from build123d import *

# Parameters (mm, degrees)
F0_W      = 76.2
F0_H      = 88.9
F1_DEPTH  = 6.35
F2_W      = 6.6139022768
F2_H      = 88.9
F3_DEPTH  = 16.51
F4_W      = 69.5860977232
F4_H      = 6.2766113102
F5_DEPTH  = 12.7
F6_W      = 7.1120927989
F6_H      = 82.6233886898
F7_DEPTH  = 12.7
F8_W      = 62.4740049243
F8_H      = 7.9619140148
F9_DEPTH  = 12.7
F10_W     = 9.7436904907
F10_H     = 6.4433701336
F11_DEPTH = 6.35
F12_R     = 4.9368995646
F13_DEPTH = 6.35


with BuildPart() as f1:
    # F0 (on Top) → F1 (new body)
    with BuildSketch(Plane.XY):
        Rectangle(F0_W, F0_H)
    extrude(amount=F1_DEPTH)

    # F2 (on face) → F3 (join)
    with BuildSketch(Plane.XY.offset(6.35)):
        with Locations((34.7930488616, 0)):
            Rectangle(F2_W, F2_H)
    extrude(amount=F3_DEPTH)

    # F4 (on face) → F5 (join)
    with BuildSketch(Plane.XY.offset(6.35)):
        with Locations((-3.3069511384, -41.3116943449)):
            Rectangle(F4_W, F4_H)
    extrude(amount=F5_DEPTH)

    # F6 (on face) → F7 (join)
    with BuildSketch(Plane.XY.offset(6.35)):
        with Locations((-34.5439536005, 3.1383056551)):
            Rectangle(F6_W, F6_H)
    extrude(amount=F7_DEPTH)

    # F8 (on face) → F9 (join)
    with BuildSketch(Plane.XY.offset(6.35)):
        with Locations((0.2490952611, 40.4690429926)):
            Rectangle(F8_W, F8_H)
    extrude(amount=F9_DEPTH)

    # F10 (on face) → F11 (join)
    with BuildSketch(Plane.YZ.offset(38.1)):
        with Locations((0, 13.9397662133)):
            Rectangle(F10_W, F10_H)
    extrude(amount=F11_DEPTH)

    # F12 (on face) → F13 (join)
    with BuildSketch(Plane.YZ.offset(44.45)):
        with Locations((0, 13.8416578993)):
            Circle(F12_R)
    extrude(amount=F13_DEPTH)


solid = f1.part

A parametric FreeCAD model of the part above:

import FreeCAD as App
import Part
import Sketcher

V = App.Vector
Q = App.Units.Quantity

doc = App.newDocument("Part")
body = doc.addObject("PartDesign::Body", "Body")

# Sketch on XY plane
sketch1 = body.newObject("Sketcher::SketchObject", "Sketch")
sketch1.AttachmentSupport = (doc.getObject("XY_Plane"), [""])
sketch1.MapMode = "FlatFace"
sketch1.addGeometry(Part.LineSegment(V(-38.1, 44.45, 0), V(-38.1, -44.45, 0)), False)
sketch1.addGeometry(Part.LineSegment(V(-38.1, -44.45, 0), V(38.1, -44.45, 0)), False)
sketch1.addGeometry(Part.LineSegment(V(38.1, -44.45, 0), V(38.1, 44.45, 0)), False)
sketch1.addGeometry(Part.LineSegment(V(38.1, 44.45, 0), V(-38.1, 44.45, 0)), False)
sketch1.addConstraint(Sketcher.Constraint("Coincident", 0, 2, 1, 1))
sketch1.addConstraint(Sketcher.Constraint("Coincident", 1, 2, 2, 1))
sketch1.addConstraint(Sketcher.Constraint("Coincident", 2, 2, 3, 1))
sketch1.addConstraint(Sketcher.Constraint("Coincident", 3, 2, 0, 1))
sketch1.addConstraint(Sketcher.Constraint("Vertical", 0))
sketch1.addConstraint(Sketcher.Constraint("Horizontal", 1))
sketch1.addConstraint(Sketcher.Constraint("Vertical", 2))
sketch1.addConstraint(Sketcher.Constraint("Horizontal", 3))
sketch1.addConstraint(Sketcher.Constraint("Symmetric", 0, 2, 2, 2, -1, 1))
sketch1.addConstraint(Sketcher.Constraint("DistanceX", 1, 1, 1, 2, Q("3 in")))
sketch1.addConstraint(Sketcher.Constraint("DistanceY", 0, 2, 0, 1, Q("3.5 in")))
pad1 = body.newObject("PartDesign::Pad", "Pad")
pad1.Profile = sketch1
pad1.Length = Q("0.25 in")

# Sketch on XY plane
sketch2 = body.newObject("Sketcher::SketchObject", "Sketch001")
sketch2.AttachmentSupport = (doc.getObject("XY_Plane"), [""])
sketch2.MapMode = "FlatFace"
sketch2.AttachmentOffset = App.Placement(V(0, 0, 0.25 * 25.4), App.Rotation())
sketch2.addGeometry(Part.LineSegment(V(31.486098, 44.45, 0), V(31.486098, -44.45, 0)), False)
sketch2.addGeometry(Part.LineSegment(V(31.486098, -44.45, 0), V(38.1, -44.45, 0)), False)
sketch2.addGeometry(Part.LineSegment(V(38.1, -44.45, 0), V(38.1, 44.45, 0)), False)
sketch2.addGeometry(Part.LineSegment(V(38.1, 44.45, 0), V(31.486098, 44.45, 0)), False)
sketch2.addConstraint(Sketcher.Constraint("Coincident", 0, 2, 1, 1))
sketch2.addConstraint(Sketcher.Constraint("Coincident", 1, 2, 2, 1))
sketch2.addConstraint(Sketcher.Constraint("Coincident", 2, 2, 3, 1))
sketch2.addConstraint(Sketcher.Constraint("Coincident", 3, 2, 0, 1))
sketch2.addConstraint(Sketcher.Constraint("Vertical", 0))
sketch2.addConstraint(Sketcher.Constraint("Horizontal", 1))
sketch2.addConstraint(Sketcher.Constraint("Vertical", 2))
sketch2.addConstraint(Sketcher.Constraint("Horizontal", 3))
sketch2.addConstraint(Sketcher.Constraint("DistanceY", 0, 2, 0, 1, Q("3.5 in")))
sketch2.addConstraint(Sketcher.Constraint("DistanceX", -1, 1, 1, 2, Q("1.5 in")))
sketch2.addConstraint(Sketcher.Constraint("DistanceY", 0, 2, -1, 1, Q("1.75 in")))
sketch2.addConstraint(Sketcher.Constraint("DistanceX", 1, 1, 1, 2, Q("6.613902 mm")))
pad2 = body.newObject("PartDesign::Pad", "Pad001")
pad2.Profile = sketch2
pad2.Length = Q("0.65 in")

# Sketch on XY plane
sketch3 = body.newObject("Sketcher::SketchObject", "Sketch002")
sketch3.AttachmentSupport = (doc.getObject("XY_Plane"), [""])
sketch3.MapMode = "FlatFace"
sketch3.AttachmentOffset = App.Placement(V(0, 0, 0.25 * 25.4), App.Rotation())
sketch3.addGeometry(Part.LineSegment(V(-38.1, -38.173389, 0), V(-38.1, -44.45, 0)), False)
sketch3.addGeometry(Part.LineSegment(V(-38.1, -44.45, 0), V(31.486098, -44.45, 0)), False)
sketch3.addGeometry(Part.LineSegment(V(31.486098, -44.45, 0), V(31.486098, -38.173389, 0)), False)
sketch3.addGeometry(Part.LineSegment(V(31.486098, -38.173389, 0), V(-38.1, -38.173389, 0)), False)
sketch3.addConstraint(Sketcher.Constraint("Coincident", 0, 2, 1, 1))
sketch3.addConstraint(Sketcher.Constraint("Coincident", 1, 2, 2, 1))
sketch3.addConstraint(Sketcher.Constraint("Coincident", 2, 2, 3, 1))
sketch3.addConstraint(Sketcher.Constraint("Coincident", 3, 2, 0, 1))
sketch3.addConstraint(Sketcher.Constraint("Vertical", 0))
sketch3.addConstraint(Sketcher.Constraint("Horizontal", 1))
sketch3.addConstraint(Sketcher.Constraint("Vertical", 2))
sketch3.addConstraint(Sketcher.Constraint("Horizontal", 3))
sketch3.addConstraint(Sketcher.Constraint("DistanceX", 0, 2, -1, 1, Q("1.5 in")))
sketch3.addConstraint(Sketcher.Constraint("DistanceY", 0, 2, -1, 1, Q("1.75 in")))
sketch3.addConstraint(Sketcher.Constraint("DistanceY", 0, 2, 0, 1, Q("6.276611 mm")))
sketch3.addConstraint(Sketcher.Constraint("DistanceX", 1, 1, 1, 2, Q("69.586098 mm")))
pad3 = body.newObject("PartDesign::Pad", "Pad002")
pad3.Profile = sketch3
pad3.Length = Q("0.5 in")

# Sketch on XY plane
sketch4 = body.newObject("Sketcher::SketchObject", "Sketch003")
sketch4.AttachmentSupport = (doc.getObject("XY_Plane"), [""])
sketch4.MapMode = "FlatFace"
sketch4.AttachmentOffset = App.Placement(V(0, 0, 0.25 * 25.4), App.Rotation())
sketch4.addGeometry(Part.LineSegment(V(-38.1, 44.45, 0), V(-38.1, -38.173389, 0)), False)
sketch4.addGeometry(Part.LineSegment(V(-38.1, -38.173389, 0), V(-30.987907, -38.173389, 0)), False)
sketch4.addGeometry(Part.LineSegment(V(-30.987907, -38.173389, 0), V(-30.987907, 44.45, 0)), False)
sketch4.addGeometry(Part.LineSegment(V(-30.987907, 44.45, 0), V(-38.1, 44.45, 0)), False)
sketch4.addConstraint(Sketcher.Constraint("Coincident", 0, 2, 1, 1))
sketch4.addConstraint(Sketcher.Constraint("Coincident", 1, 2, 2, 1))
sketch4.addConstraint(Sketcher.Constraint("Coincident", 2, 2, 3, 1))
sketch4.addConstraint(Sketcher.Constraint("Coincident", 3, 2, 0, 1))
sketch4.addConstraint(Sketcher.Constraint("Vertical", 0))
sketch4.addConstraint(Sketcher.Constraint("Horizontal", 1))
sketch4.addConstraint(Sketcher.Constraint("Vertical", 2))
sketch4.addConstraint(Sketcher.Constraint("Horizontal", 3))
sketch4.addConstraint(Sketcher.Constraint("DistanceX", 0, 2, -1, 1, Q("1.5 in")))
sketch4.addConstraint(Sketcher.Constraint("DistanceY", -1, 1, 2, 2, Q("1.75 in")))
sketch4.addConstraint(Sketcher.Constraint("DistanceY", 0, 2, 0, 1, Q("82.623389 mm")))
sketch4.addConstraint(Sketcher.Constraint("DistanceX", 1, 1, 1, 2, Q("7.112093 mm")))
pad4 = body.newObject("PartDesign::Pad", "Pad003")
pad4.Profile = sketch4
pad4.Length = Q("0.5 in")

# Sketch on XY plane
sketch5 = body.newObject("Sketcher::SketchObject", "Sketch004")
sketch5.AttachmentSupport = (doc.getObject("XY_Plane"), [""])
sketch5.MapMode = "FlatFace"
sketch5.AttachmentOffset = App.Placement(V(0, 0, 0.25 * 25.4), App.Rotation())
sketch5.addGeometry(Part.LineSegment(V(-30.987907, 44.45, 0), V(-30.987907, 36.488086, 0)), False)
sketch5.addGeometry(Part.LineSegment(V(-30.987907, 36.488086, 0), V(31.486098, 36.488086, 0)), False)
sketch5.addGeometry(Part.LineSegment(V(31.486098, 36.488086, 0), V(31.486098, 44.45, 0)), False)
sketch5.addGeometry(Part.LineSegment(V(31.486098, 44.45, 0), V(-30.987907, 44.45, 0)), False)
sketch5.addConstraint(Sketcher.Constraint("Coincident", 0, 2, 1, 1))
sketch5.addConstraint(Sketcher.Constraint("Coincident", 1, 2, 2, 1))
sketch5.addConstraint(Sketcher.Constraint("Coincident", 2, 2, 3, 1))
sketch5.addConstraint(Sketcher.Constraint("Coincident", 3, 2, 0, 1))
sketch5.addConstraint(Sketcher.Constraint("Vertical", 0))
sketch5.addConstraint(Sketcher.Constraint("Horizontal", 1))
sketch5.addConstraint(Sketcher.Constraint("Vertical", 2))
sketch5.addConstraint(Sketcher.Constraint("Horizontal", 3))
sketch5.addConstraint(Sketcher.Constraint("DistanceY", -1, 1, 2, 2, Q("1.75 in")))
sketch5.addConstraint(Sketcher.Constraint("DistanceX", 1, 1, 1, 2, Q("62.474005 mm")))
sketch5.addConstraint(Sketcher.Constraint("DistanceY", 0, 2, 0, 1, Q("7.961914 mm")))
sketch5.addConstraint(Sketcher.Constraint("DistanceX", 0, 2, -1, 1, Q("30.987907 mm")))
pad5 = body.newObject("PartDesign::Pad", "Pad004")
pad5.Profile = sketch5
pad5.Length = Q("0.5 in")

# Sketch on YZ plane
sketch6 = body.newObject("Sketcher::SketchObject", "Sketch005")
sketch6.AttachmentSupport = (doc.getObject("YZ_Plane"), [""])
sketch6.MapMode = "FlatFace"
sketch6.AttachmentOffset = App.Placement(V(0, 0, 1.5 * 25.4), App.Rotation())
sketch6.addGeometry(Part.LineSegment(V(-4.871845, 17.161451, 0), V(-4.871845, 10.718081, 0)), False)
sketch6.addGeometry(Part.LineSegment(V(-4.871845, 10.718081, 0), V(4.871845, 10.718081, 0)), False)
sketch6.addGeometry(Part.LineSegment(V(4.871845, 10.718081, 0), V(4.871845, 17.161451, 0)), False)
sketch6.addGeometry(Part.LineSegment(V(4.871845, 17.161451, 0), V(-4.871845, 17.161451, 0)), False)
sketch6.addConstraint(Sketcher.Constraint("Coincident", 0, 2, 1, 1))
sketch6.addConstraint(Sketcher.Constraint("Coincident", 1, 2, 2, 1))
sketch6.addConstraint(Sketcher.Constraint("Coincident", 2, 2, 3, 1))
sketch6.addConstraint(Sketcher.Constraint("Coincident", 3, 2, 0, 1))
sketch6.addConstraint(Sketcher.Constraint("Vertical", 0))
sketch6.addConstraint(Sketcher.Constraint("Horizontal", 1))
sketch6.addConstraint(Sketcher.Constraint("Vertical", 2))
sketch6.addConstraint(Sketcher.Constraint("Horizontal", 3))
sketch6.addConstraint(Sketcher.Constraint("DistanceX", 1, 1, 1, 2, Q("9.74369 mm")))
sketch6.addConstraint(Sketcher.Constraint("DistanceY", 0, 2, 0, 1, Q("6.44337 mm")))
sketch6.addConstraint(Sketcher.Constraint("DistanceY", -1, 1, 0, 2, Q("10.718081 mm")))
sketch6.addConstraint(Sketcher.Constraint("DistanceX", 0, 2, -1, 1, Q("4.871845 mm")))
pad6 = body.newObject("PartDesign::Pad", "Pad005")
pad6.Profile = sketch6
pad6.Length = Q("0.25 in")

# Sketch on YZ plane
sketch7 = body.newObject("Sketcher::SketchObject", "Sketch006")
sketch7.AttachmentSupport = (doc.getObject("YZ_Plane"), [""])
sketch7.MapMode = "FlatFace"
sketch7.AttachmentOffset = App.Placement(V(0, 0, 1.75 * 25.4), App.Rotation())
sketch7.addGeometry(Part.Circle(V(0, 13.841658, 0), V(0, 0, 1), 4.9369), False)
sketch7.addConstraint(Sketcher.Constraint("PointOnObject", 0, 3, -2))
sketch7.addConstraint(Sketcher.Constraint("Diameter", 0, Q("9.873799 mm")))
sketch7.addConstraint(Sketcher.Constraint("DistanceY", -1, 1, 0, 3, Q("13.841658 mm")))
pad7 = body.newObject("PartDesign::Pad", "Pad006")
pad7.Profile = sketch7
pad7.Length = Q("0.25 in")

doc.recompute()
